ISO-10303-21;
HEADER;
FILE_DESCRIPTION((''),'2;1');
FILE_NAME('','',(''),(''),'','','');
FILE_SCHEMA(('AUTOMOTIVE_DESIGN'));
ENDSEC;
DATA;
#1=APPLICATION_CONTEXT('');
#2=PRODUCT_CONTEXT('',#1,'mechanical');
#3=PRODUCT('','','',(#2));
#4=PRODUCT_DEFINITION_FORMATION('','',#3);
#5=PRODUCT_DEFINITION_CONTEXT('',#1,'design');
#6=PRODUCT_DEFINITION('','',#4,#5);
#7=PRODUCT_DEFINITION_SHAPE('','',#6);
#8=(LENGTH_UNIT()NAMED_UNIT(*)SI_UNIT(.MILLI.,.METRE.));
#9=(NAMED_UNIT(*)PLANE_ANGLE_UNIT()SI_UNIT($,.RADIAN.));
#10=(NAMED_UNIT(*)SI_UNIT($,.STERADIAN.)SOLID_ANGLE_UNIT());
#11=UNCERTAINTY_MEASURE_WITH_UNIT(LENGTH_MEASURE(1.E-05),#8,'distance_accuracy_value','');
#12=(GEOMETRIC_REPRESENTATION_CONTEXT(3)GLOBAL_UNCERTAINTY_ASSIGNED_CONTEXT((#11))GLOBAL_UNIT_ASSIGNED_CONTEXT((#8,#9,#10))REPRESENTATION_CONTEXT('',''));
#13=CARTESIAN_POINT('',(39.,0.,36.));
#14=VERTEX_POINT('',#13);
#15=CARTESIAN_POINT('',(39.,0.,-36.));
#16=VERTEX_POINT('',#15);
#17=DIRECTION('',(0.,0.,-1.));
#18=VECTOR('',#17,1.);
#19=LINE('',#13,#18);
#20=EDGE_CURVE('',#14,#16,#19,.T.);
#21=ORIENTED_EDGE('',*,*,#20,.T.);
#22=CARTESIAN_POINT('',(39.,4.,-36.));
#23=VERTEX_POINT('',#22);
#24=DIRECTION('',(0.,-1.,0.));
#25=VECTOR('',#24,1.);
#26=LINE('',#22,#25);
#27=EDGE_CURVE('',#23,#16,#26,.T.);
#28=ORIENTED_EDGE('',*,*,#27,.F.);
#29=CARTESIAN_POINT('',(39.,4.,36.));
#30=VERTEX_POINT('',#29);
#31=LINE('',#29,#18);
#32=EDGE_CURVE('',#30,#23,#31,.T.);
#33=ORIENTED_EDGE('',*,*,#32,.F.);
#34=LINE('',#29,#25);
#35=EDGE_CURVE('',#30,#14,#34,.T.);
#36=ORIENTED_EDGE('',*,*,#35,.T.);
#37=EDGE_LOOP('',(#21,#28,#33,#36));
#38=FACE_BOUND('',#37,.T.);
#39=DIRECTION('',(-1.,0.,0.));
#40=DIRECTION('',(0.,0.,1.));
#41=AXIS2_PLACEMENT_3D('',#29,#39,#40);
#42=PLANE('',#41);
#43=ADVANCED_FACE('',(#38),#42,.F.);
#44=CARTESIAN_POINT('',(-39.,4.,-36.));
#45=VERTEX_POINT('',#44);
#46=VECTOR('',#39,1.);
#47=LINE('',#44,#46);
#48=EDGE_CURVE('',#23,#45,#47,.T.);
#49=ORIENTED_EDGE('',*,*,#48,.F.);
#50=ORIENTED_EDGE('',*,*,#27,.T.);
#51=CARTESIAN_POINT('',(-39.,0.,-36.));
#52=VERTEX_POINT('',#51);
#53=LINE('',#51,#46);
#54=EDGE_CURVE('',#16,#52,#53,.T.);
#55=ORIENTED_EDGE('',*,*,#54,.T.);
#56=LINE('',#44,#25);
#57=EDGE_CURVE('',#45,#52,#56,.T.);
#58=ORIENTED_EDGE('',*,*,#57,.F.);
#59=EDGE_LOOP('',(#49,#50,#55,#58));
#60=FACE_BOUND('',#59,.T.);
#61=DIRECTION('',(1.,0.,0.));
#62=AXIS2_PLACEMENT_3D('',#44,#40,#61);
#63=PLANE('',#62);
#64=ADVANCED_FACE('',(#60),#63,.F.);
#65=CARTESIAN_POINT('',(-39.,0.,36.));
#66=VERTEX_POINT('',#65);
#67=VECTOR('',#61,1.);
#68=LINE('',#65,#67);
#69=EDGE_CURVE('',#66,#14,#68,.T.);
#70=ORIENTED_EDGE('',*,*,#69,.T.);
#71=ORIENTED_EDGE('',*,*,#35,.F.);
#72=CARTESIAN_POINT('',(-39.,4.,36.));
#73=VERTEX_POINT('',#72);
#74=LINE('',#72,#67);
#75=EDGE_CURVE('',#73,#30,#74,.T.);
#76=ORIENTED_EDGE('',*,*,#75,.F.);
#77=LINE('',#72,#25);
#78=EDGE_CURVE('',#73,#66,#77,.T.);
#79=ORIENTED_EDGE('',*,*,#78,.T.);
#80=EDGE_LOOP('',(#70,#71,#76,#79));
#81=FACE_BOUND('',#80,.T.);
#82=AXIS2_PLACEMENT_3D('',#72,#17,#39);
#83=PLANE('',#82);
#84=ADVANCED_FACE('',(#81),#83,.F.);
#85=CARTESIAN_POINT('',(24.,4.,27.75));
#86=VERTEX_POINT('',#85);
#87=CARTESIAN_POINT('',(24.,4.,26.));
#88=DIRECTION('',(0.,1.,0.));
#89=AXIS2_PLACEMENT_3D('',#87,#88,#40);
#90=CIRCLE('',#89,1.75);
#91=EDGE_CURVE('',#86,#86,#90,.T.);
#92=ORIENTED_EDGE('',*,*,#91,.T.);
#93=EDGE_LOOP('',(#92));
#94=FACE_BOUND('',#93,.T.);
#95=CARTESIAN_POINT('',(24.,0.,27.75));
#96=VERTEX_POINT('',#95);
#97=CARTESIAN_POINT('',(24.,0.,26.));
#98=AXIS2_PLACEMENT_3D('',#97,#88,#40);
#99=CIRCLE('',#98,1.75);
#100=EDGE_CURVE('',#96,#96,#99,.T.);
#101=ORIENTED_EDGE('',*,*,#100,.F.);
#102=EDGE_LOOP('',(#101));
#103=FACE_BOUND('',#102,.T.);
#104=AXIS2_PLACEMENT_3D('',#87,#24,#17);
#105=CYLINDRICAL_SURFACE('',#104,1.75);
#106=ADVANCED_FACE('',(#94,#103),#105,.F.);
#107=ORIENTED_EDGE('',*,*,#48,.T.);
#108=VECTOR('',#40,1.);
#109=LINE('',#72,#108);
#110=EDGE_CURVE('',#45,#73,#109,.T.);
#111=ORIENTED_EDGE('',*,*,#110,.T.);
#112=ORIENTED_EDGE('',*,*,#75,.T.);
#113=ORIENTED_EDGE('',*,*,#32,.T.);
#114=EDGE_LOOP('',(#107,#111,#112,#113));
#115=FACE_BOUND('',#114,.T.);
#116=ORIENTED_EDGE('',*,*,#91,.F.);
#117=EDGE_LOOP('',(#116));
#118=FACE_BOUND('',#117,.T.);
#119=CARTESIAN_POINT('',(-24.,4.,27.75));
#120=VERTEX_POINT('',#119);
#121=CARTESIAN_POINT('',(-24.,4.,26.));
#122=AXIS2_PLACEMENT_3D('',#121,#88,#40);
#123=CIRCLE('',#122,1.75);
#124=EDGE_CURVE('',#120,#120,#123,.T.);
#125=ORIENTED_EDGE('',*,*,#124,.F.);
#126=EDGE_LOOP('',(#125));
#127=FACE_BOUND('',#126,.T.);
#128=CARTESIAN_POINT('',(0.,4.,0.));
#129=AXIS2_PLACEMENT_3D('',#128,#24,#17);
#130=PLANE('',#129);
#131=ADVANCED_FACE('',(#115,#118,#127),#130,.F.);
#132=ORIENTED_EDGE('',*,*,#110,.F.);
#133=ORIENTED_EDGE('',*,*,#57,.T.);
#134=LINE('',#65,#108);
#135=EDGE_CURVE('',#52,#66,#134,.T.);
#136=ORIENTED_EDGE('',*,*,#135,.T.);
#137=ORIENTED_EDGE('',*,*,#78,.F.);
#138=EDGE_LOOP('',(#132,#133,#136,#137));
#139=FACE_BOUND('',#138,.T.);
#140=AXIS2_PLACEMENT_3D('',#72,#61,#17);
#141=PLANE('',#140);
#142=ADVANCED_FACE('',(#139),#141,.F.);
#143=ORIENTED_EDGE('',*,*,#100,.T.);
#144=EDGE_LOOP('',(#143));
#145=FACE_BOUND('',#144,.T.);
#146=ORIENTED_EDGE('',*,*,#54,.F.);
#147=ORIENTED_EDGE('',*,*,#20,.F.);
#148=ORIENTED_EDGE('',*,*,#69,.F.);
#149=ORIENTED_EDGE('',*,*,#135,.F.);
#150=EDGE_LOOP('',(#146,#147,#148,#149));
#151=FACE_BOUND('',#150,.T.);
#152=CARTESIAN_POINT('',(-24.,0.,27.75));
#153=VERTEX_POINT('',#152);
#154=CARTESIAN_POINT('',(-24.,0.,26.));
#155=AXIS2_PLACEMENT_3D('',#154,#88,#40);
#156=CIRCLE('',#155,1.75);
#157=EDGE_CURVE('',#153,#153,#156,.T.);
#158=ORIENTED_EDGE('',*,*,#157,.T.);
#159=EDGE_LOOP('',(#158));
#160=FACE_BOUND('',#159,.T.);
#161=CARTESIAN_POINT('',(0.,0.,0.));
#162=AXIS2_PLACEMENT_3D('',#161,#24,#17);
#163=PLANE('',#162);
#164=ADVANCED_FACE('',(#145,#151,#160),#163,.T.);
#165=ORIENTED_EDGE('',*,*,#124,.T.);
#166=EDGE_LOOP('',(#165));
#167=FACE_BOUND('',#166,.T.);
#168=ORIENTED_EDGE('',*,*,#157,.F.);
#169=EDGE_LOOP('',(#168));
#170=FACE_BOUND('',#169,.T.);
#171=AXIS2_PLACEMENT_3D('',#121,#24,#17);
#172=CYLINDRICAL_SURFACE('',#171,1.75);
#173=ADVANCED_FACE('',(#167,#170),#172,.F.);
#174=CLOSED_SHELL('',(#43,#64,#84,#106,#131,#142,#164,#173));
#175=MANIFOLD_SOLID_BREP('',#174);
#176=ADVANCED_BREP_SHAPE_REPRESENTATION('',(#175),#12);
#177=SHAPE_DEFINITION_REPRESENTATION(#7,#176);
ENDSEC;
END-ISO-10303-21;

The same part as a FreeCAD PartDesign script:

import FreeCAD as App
import Part
import Sketcher

V = App.Vector


def add_polygon(sketch, points):
    """Adds a closed chain of lines whose ends are joined by coincident constraints."""
    first, n = sketch.GeometryCount, len(points)
    for a, b in zip(points, points[1:] + points[:1]):
        sketch.addGeometry(Part.LineSegment(App.Vector(*a, 0), App.Vector(*b, 0)), False)
    for i in range(n):
        sketch.addConstraint(Sketcher.Constraint("Coincident", first + i, 2, first + (i + 1) % n, 1))

doc = App.newDocument("Part")
body = doc.addObject("PartDesign::Body", "Body")

# Sketch on XZ plane
sketch1 = body.newObject("Sketcher::SketchObject", "Sketch")
sketch1.AttachmentSupport = (doc.getObject("XZ_Plane"), [""])
sketch1.MapMode = "FlatFace"
add_polygon(sketch1, [(-39, -36), (-39, 36), (39, 36), (39, -36)])  # lines 0-3
sketch1.addGeometry(Part.Circle(V(-24, 26, 0), V(0, 0, 1), 1.75), False)  # 4
sketch1.addGeometry(Part.Circle(V(24, 26, 0), V(0, 0, 1), 1.75), False)  # 5
sketch1.addConstraint(Sketcher.Constraint("Vertical", 0))
sketch1.addConstraint(Sketcher.Constraint("Horizontal", 1))
sketch1.addConstraint(Sketcher.Constraint("Vertical", 2))
sketch1.addConstraint(Sketcher.Constraint("Horizontal", 3))
sketch1.addConstraint(Sketcher.Constraint("Equal", 4, 5))
sketch1.addConstraint(Sketcher.Constraint("Symmetric", 0, 2, 2, 2, -1, 1))
sketch1.addConstraint(Sketcher.Constraint("Symmetric", 4, 3, 5, 3, -2))
sketch1.addConstraint(Sketcher.Constraint("Diameter", 4, 3.5))
sketch1.addConstraint(Sketcher.Constraint("DistanceX", 1, 1, 1, 2, 78.0))
sketch1.addConstraint(Sketcher.Constraint("DistanceY", 0, 1, 0, 2, 72.0))
sketch1.addConstraint(Sketcher.Constraint("DistanceX", 4, 3, -1, 1, 24.0))
sketch1.addConstraint(Sketcher.Constraint("DistanceY", -1, 1, 4, 3, 26.0))
pad1 = body.newObject("PartDesign::Pad", "Pad")
pad1.Profile = sketch1
pad1.Length = 4
pad1.Reversed = True

doc.recompute()
